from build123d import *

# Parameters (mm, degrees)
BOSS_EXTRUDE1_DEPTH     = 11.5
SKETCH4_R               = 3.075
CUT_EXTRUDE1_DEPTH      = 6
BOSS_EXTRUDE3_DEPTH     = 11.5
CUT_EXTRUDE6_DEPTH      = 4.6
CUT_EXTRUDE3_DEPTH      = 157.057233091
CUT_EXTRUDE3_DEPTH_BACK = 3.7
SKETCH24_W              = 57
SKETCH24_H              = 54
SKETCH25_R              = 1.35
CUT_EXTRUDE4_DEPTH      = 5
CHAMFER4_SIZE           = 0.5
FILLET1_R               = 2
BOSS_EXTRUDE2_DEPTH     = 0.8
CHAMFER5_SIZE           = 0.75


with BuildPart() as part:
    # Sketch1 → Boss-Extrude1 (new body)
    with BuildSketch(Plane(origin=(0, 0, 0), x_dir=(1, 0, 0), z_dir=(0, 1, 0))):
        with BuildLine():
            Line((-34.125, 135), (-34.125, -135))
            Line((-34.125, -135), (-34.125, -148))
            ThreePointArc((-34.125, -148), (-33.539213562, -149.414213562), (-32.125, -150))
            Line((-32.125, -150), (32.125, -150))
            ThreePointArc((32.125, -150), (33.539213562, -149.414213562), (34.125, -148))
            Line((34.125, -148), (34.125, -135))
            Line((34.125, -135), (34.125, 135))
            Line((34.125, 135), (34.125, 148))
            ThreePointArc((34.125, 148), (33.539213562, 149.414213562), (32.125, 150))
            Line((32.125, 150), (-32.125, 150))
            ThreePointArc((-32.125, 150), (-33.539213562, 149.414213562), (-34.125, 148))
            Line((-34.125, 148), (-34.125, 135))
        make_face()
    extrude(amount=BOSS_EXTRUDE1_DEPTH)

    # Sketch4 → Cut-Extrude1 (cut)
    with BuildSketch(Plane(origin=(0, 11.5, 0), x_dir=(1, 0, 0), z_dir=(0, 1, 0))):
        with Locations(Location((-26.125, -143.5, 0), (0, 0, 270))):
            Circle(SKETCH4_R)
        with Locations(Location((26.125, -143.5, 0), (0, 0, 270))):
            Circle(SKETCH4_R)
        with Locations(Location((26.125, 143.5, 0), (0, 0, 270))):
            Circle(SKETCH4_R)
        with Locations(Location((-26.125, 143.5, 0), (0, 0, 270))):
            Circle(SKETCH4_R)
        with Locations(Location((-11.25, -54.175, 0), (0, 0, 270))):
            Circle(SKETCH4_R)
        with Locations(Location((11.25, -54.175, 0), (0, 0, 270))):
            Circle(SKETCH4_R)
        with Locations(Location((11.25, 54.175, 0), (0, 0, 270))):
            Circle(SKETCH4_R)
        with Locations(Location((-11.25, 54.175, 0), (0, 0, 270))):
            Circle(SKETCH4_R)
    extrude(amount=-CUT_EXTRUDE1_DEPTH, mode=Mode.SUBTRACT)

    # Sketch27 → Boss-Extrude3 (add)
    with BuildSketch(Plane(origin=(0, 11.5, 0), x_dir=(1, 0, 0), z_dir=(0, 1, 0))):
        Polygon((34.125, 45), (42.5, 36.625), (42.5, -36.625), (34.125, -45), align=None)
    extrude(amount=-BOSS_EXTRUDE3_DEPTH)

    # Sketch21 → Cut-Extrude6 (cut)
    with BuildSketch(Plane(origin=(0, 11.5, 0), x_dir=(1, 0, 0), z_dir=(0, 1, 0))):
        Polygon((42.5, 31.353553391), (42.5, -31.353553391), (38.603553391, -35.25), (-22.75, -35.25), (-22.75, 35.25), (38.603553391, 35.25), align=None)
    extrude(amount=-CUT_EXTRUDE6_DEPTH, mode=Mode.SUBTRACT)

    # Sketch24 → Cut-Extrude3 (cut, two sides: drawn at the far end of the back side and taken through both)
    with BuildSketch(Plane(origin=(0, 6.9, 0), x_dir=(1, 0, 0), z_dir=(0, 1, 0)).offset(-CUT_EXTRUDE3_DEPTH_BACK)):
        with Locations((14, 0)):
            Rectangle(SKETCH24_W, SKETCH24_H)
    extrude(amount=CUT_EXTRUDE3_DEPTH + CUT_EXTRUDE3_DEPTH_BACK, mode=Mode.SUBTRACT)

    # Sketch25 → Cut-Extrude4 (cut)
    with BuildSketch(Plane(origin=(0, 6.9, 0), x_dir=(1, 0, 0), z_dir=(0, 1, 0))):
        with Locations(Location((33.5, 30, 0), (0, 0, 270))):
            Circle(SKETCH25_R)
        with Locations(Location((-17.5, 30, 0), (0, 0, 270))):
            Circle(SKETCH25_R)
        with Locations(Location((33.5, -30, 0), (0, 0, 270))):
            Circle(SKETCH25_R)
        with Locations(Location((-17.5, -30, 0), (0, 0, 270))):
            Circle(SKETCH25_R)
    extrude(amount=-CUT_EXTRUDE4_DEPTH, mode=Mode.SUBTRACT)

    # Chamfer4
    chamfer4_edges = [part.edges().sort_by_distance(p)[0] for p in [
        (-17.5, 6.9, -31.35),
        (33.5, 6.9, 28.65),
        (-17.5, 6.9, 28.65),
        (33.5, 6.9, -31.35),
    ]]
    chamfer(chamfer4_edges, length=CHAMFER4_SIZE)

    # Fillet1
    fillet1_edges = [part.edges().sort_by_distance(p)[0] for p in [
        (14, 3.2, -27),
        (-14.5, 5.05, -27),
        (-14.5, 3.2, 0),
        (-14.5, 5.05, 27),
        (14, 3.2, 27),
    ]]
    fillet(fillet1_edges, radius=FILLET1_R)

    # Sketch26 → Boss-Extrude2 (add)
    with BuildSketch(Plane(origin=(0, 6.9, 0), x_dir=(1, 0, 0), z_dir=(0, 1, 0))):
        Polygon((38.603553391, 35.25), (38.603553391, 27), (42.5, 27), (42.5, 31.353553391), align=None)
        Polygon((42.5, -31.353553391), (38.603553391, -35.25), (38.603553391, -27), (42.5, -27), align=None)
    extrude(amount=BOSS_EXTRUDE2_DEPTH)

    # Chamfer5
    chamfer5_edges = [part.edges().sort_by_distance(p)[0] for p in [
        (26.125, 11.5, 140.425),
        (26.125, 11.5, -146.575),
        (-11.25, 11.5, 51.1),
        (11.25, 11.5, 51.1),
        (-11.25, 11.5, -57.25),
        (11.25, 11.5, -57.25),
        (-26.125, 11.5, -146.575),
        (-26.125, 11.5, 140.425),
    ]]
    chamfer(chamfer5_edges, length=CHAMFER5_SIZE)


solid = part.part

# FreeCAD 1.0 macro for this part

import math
import FreeCAD as App
import Part
import Sketcher

V = App.Vector
Q = App.Units.Quantity


def edges_at(feature, points):
    """Names of the edges that pass closest to the given points."""
    edges = feature.Shape.Edges
    near = lambda p: min(range(len(edges)), key=lambda i: edges[i].distToShape(Part.Vertex(*p))[0])
    return sorted({f"Edge{near(p) + 1}" for p in points})

doc = App.newDocument("Part")
params = doc.addObject("Spreadsheet::Sheet", "Params")
for row, (alias, value) in enumerate([
    ("sketch1_radius", "2 mm"),
    ("sketch1_height", "296 mm"),
    ("sketch1_width", "64.25 mm"),
    ("pad1_length", "11.5 mm"),
    ("sketch2_diameter", "6.15 mm"),
    ("pocket1_length", "6 mm"),
    ("sketch3_height", "90 mm"),
    ("sketch3_height2", "73.25 mm"),
    ("pad2_length", "11.5 mm"),
    ("sketch4_height", "70.5 mm"),
    ("pocket2_length", "4.6 mm"),
    ("sketch5_width", "57 mm"),
    ("sketch5_height", "54 mm"),
    ("pocket3_length", "157.057233 mm"),
    ("pocket3_length2", "3.7 mm"),
    ("sketch6_diameter", "2.7 mm"),
    ("pocket4_length", "5 mm"),
    ("chamfer_size", "0.5 mm"),
    ("fillet_radius", "2 mm"),
    ("sketch7_height", "8.25 mm"),
    ("pad3_length", "0.8 mm"),
    ("chamfer2_size", "0.75 mm"),
], start=1):
    params.set(f"A{row}", alias)
    params.set(f"B{row}", "=" + value)
    params.setAlias(f"B{row}", alias)

body = doc.addObject("PartDesign::Body", "Body")

# Sketch on XZ plane
sketch1 = body.newObject("Sketcher::SketchObject", "Sketch")
sketch1.AttachmentSupport = (doc.getObject("XZ_Plane"), [""])
sketch1.MapMode = "FlatFace"
sketch1.addGeometry([
    Part.ArcOfCircle(Part.Circle(V(-32.1, 148, 0), V(0, 0, 1), 2), math.radians(90), math.radians(180)),  # 0
    Part.LineSegment(V(-32.1, 150, 0), V(32.1, 150, 0)),  # 1
    Part.ArcOfCircle(Part.Circle(V(32.1, 148, 0), V(0, 0, 1), 2), math.radians(0), math.radians(90)),  # 2
    Part.LineSegment(V(34.1, 148, 0), V(34.1, -148, 0)),  # 3
    Part.ArcOfCircle(Part.Circle(V(32.1, -148, 0), V(0, 0, 1), 2), math.radians(-90), math.radians(0)),  # 4
    Part.LineSegment(V(32.1, -150, 0), V(-32.1, -150, 0)),  # 5
    Part.ArcOfCircle(Part.Circle(V(-32.1, -148, 0), V(0, 0, 1), 2), math.radians(-180), math.radians(-90)),  # 6
    Part.LineSegment(V(-34.1, -148, 0), V(-34.1, 148, 0)),  # 7
], False)
sketch1.addConstraint([
    Sketcher.Constraint("Tangent", 0, 1, 1, 1),
    Sketcher.Constraint("Tangent", 1, 2, 2, 2),
    Sketcher.Constraint("Tangent", 2, 1, 3, 1),
    Sketcher.Constraint("Tangent", 3, 2, 4, 2),
    Sketcher.Constraint("Tangent", 4, 1, 5, 1),
    Sketcher.Constraint("Tangent", 5, 2, 6, 2),
    Sketcher.Constraint("Tangent", 6, 1, 7, 1),
    Sketcher.Constraint("Tangent", 7, 2, 0, 2),
    Sketcher.Constraint("Horizontal", 1),
    Sketcher.Constraint("Vertical", 3),
    Sketcher.Constraint("Horizontal", 5),
    Sketcher.Constraint("Vertical", 7),
    Sketcher.Constraint("Equal", 0, 2),
    Sketcher.Constraint("Equal", 2, 4),
    Sketcher.Constraint("Equal", 4, 6),
    Sketcher.Constraint("Symmetric", 0, 3, 4, 3, -1, 1),
    Sketcher.Constraint("Radius", 0, Q("2 mm")),
    Sketcher.Constraint("DistanceY", 3, 2, 3, 1, Q("296 mm")),
    Sketcher.Constraint("DistanceX", 1, 1, 1, 2, Q("64.25 mm")),
])
sketch1.setExpression("Constraints[16]", "Params.sketch1_radius")
sketch1.setExpression("Constraints[17]", "Params.sketch1_height")
sketch1.setExpression("Constraints[18]", "Params.sketch1_width")
pad1 = body.newObject("PartDesign::Pad", "Pad")
pad1.Profile = sketch1
pad1.setExpression("Length", "Params.pad1_length")
pad1.Reversed = True

# Sketch on XZ plane
sketch2 = body.newObject("Sketcher::SketchObject", "Sketch001")
sketch2.AttachmentSupport = (doc.getObject("XZ_Plane"), [""])
sketch2.MapMode = "FlatFace"
sketch2.AttachmentOffset = App.Placement(V(0, 0, -11.5), App.Rotation())
sketch2.addGeometry([
    Part.Circle(V(-26.1, 143.5, 0), V(0, 0, 1), 3.1),  # 0
    Part.Circle(V(26.1, 143.5, 0), V(0, 0, 1), 3.1),  # 1
    Part.Circle(V(26.1, -143.5, 0), V(0, 0, 1), 3.1),  # 2
    Part.Circle(V(-26.1, -143.5, 0), V(0, 0, 1), 3.1),  # 3
    Part.Circle(V(-11.2, 54.2, 0), V(0, 0, 1), 3.1),  # 4
    Part.Circle(V(11.2, 54.2, 0), V(0, 0, 1), 3.1),  # 5
    Part.Circle(V(11.2, -54.2, 0), V(0, 0, 1), 3.1),  # 6
    Part.Circle(V(-11.2, -54.2, 0), V(0, 0, 1), 3.1),  # 7
], False)
sketch2.addConstraint([
    Sketcher.Constraint("Equal", 0, 1),
    Sketcher.Constraint("Equal", 1, 2),
    Sketcher.Constraint("Equal", 2, 3),
    Sketcher.Constraint("Equal", 3, 4),
    Sketcher.Constraint("Equal", 4, 5),
    Sketcher.Constraint("Equal", 5, 6),
    Sketcher.Constraint("Equal", 6, 7),
    Sketcher.Constraint("Symmetric", 0, 3, 2, 3, -1, 1),
    Sketcher.Constraint("Symmetric", 1, 3, 3, 3, -1, 1),
    Sketcher.Constraint("Symmetric", 4, 3, 6, 3, -1, 1),
    Sketcher.Constraint("Symmetric", 5, 3, 7, 3, -1, 1),
    Sketcher.Constraint("Symmetric", 0, 3, 1, 3, -2),
    Sketcher.Constraint("Symmetric", 4, 3, 5, 3, -2),
    Sketcher.Constraint("Diameter", 0, Q("6.15 mm")),
    Sketcher.Constraint("DistanceY", 2, 3, 1, 3, Q("287 mm")),
    Sketcher.Constraint("DistanceX", 4, 3, 5, 3, Q("22.5 mm")),
    Sketcher.Constraint("DistanceX", 0, 3, 1, 3, Q("52.25 mm")),
    Sketcher.Constraint("DistanceY", 6, 3, 5, 3, Q("108.35 mm")),
])
sketch2.setExpression("Constraints[13]", "Params.sketch2_diameter")
pocket1 = body.newObject("PartDesign::Pocket", "Pocket")
pocket1.Profile = sketch2
pocket1.setExpression("Length", "Params.pocket1_length")
pocket1.Reversed = True

# Sketch on XZ plane
sketch3 = body.newObject("Sketcher::SketchObject", "Sketch002")
sketch3.AttachmentSupport = (doc.getObject("XZ_Plane"), [""])
sketch3.MapMode = "FlatFace"
sketch3.AttachmentOffset = App.Placement(V(0, 0, -11.5), App.Rotation())
sketch3.addGeometry([
    Part.LineSegment(V(42, -37, 0), V(34, -45, 0)),
    Part.LineSegment(V(34, -45, 0), V(34, 45, 0)),
    Part.LineSegment(V(34, 45, 0), V(42, 37, 0)),
    Part.LineSegment(V(42, 37, 0), V(42, -37, 0)),
], False)
sketch3.addConstraint([
    Sketcher.Constraint("Coincident", 0, 2, 1, 1),
    Sketcher.Constraint("Coincident", 1, 2, 2, 1),
    Sketcher.Constraint("Coincident", 2, 2, 3, 1),
    Sketcher.Constraint("Coincident", 3, 2, 0, 1),
    Sketcher.Constraint("Vertical", 1),
    Sketcher.Constraint("Vertical", 3),
    Sketcher.Constraint("Perpendicular", 0, 2),
    Sketcher.Constraint("Equal", 0, 2),
    Sketcher.Constraint("DistanceY", 1, 1, 1, 2, Q("90 mm")),
    Sketcher.Constraint("DistanceY", 0, 2, -1, 1, Q("45 mm")),
    Sketcher.Constraint("DistanceY", 3, 2, 3, 1, Q("73.25 mm")),
    Sketcher.Constraint("DistanceX", -1, 1, 2, 2, Q("42.5 mm")),
])
sketch3.setExpression("Constraints[8]", "Params.sketch3_height")
sketch3.setExpression("Constraints[10]", "Params.sketch3_height2")
pad2 = body.newObject("PartDesign::Pad", "Pad001")
pad2.Profile = sketch3
pad2.setExpression("Length", "Params.pad2_length")

# Sketch on XZ plane
sketch4 = body.newObject("Sketcher::SketchObject", "Sketch003")
sketch4.AttachmentSupport = (doc.getObject("XZ_Plane"), [""])
sketch4.MapMode = "FlatFace"
sketch4.AttachmentOffset = App.Placement(V(0, 0, -11.5), App.Rotation())
sketch4.addGeometry([
    Part.LineSegment(V(42, 31, 0), V(42, -31, 0)),  # 0
    Part.LineSegment(V(42, -31, 0), V(39, -35, 0)),  # 1
    Part.LineSegment(V(39, -35, 0), V(-23, -35, 0)),  # 2
    Part.LineSegment(V(-23, -35, 0), V(-23, 35, 0)),  # 3
    Part.LineSegment(V(-23, 35, 0), V(39, 35, 0)),  # 4
    Part.LineSegment(V(39, 35, 0), V(42, 31, 0)),  # 5
], False)
sketch4.addConstraint([
    Sketcher.Constraint("Coincident", 0, 2, 1, 1),
    Sketcher.Constraint("Coincident", 1, 2, 2, 1),
    Sketcher.Constraint("Coincident", 2, 2, 3, 1),
    Sketcher.Constraint("Coincident", 3, 2, 4, 1),
    Sketcher.Constraint("Coincident", 4, 2, 5, 1),
    Sketcher.Constraint("Coincident", 5, 2, 0, 1),
    Sketcher.Constraint("Vertical", 0),
    Sketcher.Constraint("Horizontal", 2),
    Sketcher.Constraint("Vertical", 3),
    Sketcher.Constraint("Horizontal", 4),
    Sketcher.Constraint("Symmetric", 1, 2, 4, 2, -1),
    Sketcher.Constraint("Perpendicular", 1, 5),
    Sketcher.Constraint("Equal", 1, 5),
    Sketcher.Constraint("DistanceY", 3, 1, 3, 2, Q("70.5 mm")),
    Sketcher.Constraint("DistanceX", -1, 1, 0, 2, Q("42.5 mm")),
    Sketcher.Constraint("DistanceX", 2, 2, -1, 1, Q("22.75 mm")),
    Sketcher.Constraint("DistanceX", 2, 2, 2, 1, Q("61.353553 mm")),
])
sketch4.setExpression("Constraints[13]", "Params.sketch4_height")
pocket2 = body.newObject("PartDesign::Pocket", "Pocket001")
pocket2.Profile = sketch4
pocket2.setExpression("Length", "Params.pocket2_length")
pocket2.Reversed = True

# Sketch on XZ plane
sketch5 = body.newObject("Sketcher::SketchObject", "Sketch004")
sketch5.AttachmentSupport = (doc.getObject("XZ_Plane"), [""])
sketch5.MapMode = "FlatFace"
sketch5.AttachmentOffset = App.Placement(V(0, 0, -6.9), App.Rotation())
sketch5.addGeometry([
    Part.LineSegment(V(-14, -27, 0), V(-14, 27, 0)),
    Part.LineSegment(V(-14, 27, 0), V(42, 27, 0)),
    Part.LineSegment(V(42, 27, 0), V(42, -27, 0)),
    Part.LineSegment(V(42, -27, 0), V(-14, -27, 0)),
], False)
sketch5.addConstraint([
    Sketcher.Constraint("Coincident", 0, 2, 1, 1),
    Sketcher.Constraint("Coincident", 1, 2, 2, 1),
    Sketcher.Constraint("Coincident", 2, 2, 3, 1),
    Sketcher.Constraint("Coincident", 3, 2, 0, 1),
    Sketcher.Constraint("Vertical", 0),
    Sketcher.Constraint("Horizontal", 1),
    Sketcher.Constraint("Vertical", 2),
    Sketcher.Constraint("Horizontal", 3),
    Sketcher.Constraint("DistanceX", 1, 1, 1, 2, Q("57 mm")),
    Sketcher.Constraint("DistanceY", 0, 1, 0, 2, Q("54 mm")),
    Sketcher.Constraint("DistanceY", -1, 1, 0, 2, Q("27 mm")),
    Sketcher.Constraint("DistanceX", 0, 2, -1, 1, Q("14.5 mm")),
])
sketch5.setExpression("Constraints[8]", "Params.sketch5_width")
sketch5.setExpression("Constraints[9]", "Params.sketch5_height")
pocket3 = body.newObject("PartDesign::Pocket", "Pocket002")
pocket3.Profile = sketch5
pocket3.Type = "TwoLengths"
pocket3.setExpression("Length", "Params.pocket3_length")
pocket3.setExpression("Length2", "Params.pocket3_length2")

# Sketch on XZ plane
sketch6 = body.newObject("Sketcher::SketchObject", "Sketch005")
sketch6.AttachmentSupport = (doc.getObject("XZ_Plane"), [""])
sketch6.MapMode = "FlatFace"
sketch6.AttachmentOffset = App.Placement(V(0, 0, -6.9), App.Rotation())
sketch6.addGeometry([
    Part.Circle(V(33.5, -30, 0), V(0, 0, 1), 1.4),
    Part.Circle(V(-17.5, -30, 0), V(0, 0, 1), 1.4),
    Part.Circle(V(33.5, 30, 0), V(0, 0, 1), 1.4),
    Part.Circle(V(-17.5, 30, 0), V(0, 0, 1), 1.4),
], False)
sketch6.addConstraint([
    Sketcher.Constraint("Equal", 0, 1),
    Sketcher.Constraint("Equal", 1, 2),
    Sketcher.Constraint("Equal", 2, 3),
    Sketcher.Constraint("Symmetric", 0, 3, 2, 3, -1),
    Sketcher.Constraint("Symmetric", 1, 3, 3, 3, -1),
    Sketcher.Constraint("Horizontal", 0, 3, 1, 3),
    Sketcher.Constraint("Diameter", 0, Q("2.7 mm")),
    Sketcher.Constraint("DistanceY", 0, 3, -1, 1, Q("30 mm")),
    Sketcher.Constraint("DistanceX", 1, 3, 0, 3, Q("51 mm")),
    Sketcher.Constraint("DistanceX", -1, 1, 0, 3, Q("33.5 mm")),
])
sketch6.setExpression("Constraints[6]", "Params.sketch6_diameter")
pocket4 = body.newObject("PartDesign::Pocket", "Pocket003")
pocket4.Profile = sketch6
pocket4.setExpression("Length", "Params.pocket4_length")
pocket4.Reversed = True
doc.recompute()

chamfer = body.newObject("PartDesign::Chamfer", "Chamfer")
chamfer.Base = (pocket4, edges_at(pocket4, [
    (-17.5, 6.9, -31.35),
    (33.5, 6.9, 28.65),
    (-17.5, 6.9, 28.65),
    (33.5, 6.9, -31.35),
]))
chamfer.setExpression("Size", "Params.chamfer_size")
doc.recompute()

fillet = body.newObject("PartDesign::Fillet", "Fillet")
fillet.Base = (chamfer, edges_at(chamfer, [
    (14, 3.2, -27),
    (-14.5, 5.05, -27),
    (-14.5, 3.2, 0),
    (-14.5, 5.05, 27),
    (14, 3.2, 27),
]))
fillet.setExpression("Radius", "Params.fillet_radius")

# Sketch on XZ plane
sketch7 = body.newObject("Sketcher::SketchObject", "Sketch006")
sketch7.AttachmentSupport = (doc.getObject("XZ_Plane"), [""])
sketch7.MapMode = "FlatFace"
sketch7.AttachmentOffset = App.Placement(V(0, 0, -6.9), App.Rotation())
sketch7.addGeometry([
    Part.LineSegment(V(38.6, -35.2, 0), V(38.6, -27, 0)),  # 0
    Part.LineSegment(V(38.6, -27, 0), V(42.5, -27, 0)),  # 1
    Part.LineSegment(V(42.5, -27, 0), V(42.5, -31.4, 0)),  # 2
    Part.LineSegment(V(42.5, -31.4, 0), V(38.6, -35.2, 0)),  # 3
    Part.LineSegment(V(38.6, 35.2, 0), V(42.5, 31.4, 0)),  # 4
    Part.LineSegment(V(42.5, 31.4, 0), V(42.5, 27, 0)),  # 5
    Part.LineSegment(V(42.5, 27, 0), V(38.6, 27, 0)),  # 6
    Part.LineSegment(V(38.6, 27, 0), V(38.6, 35.2, 0)),  # 7
], False)
sketch7.addConstraint([
    Sketcher.Constraint("Coincident", 0, 2, 1, 1),
    Sketcher.Constraint("Coincident", 1, 2, 2, 1),
    Sketcher.Constraint("Coincident", 2, 2, 3, 1),
    Sketcher.Constraint("Coincident", 3, 2, 0, 1),
    Sketcher.Constraint("Coincident", 4, 2, 5, 1),
    Sketcher.Constraint("Coincident", 5, 2, 6, 1),
    Sketcher.Constraint("Coincident", 6, 2, 7, 1),
    Sketcher.Constraint("Coincident", 7, 2, 4, 1),
    Sketcher.Constraint("Vertical", 0),
    Sketcher.Constraint("Horizontal", 1),
    Sketcher.Constraint("Vertical", 2),
    Sketcher.Constraint("Vertical", 5),
    Sketcher.Constraint("Horizontal", 6),
    Sketcher.Constraint("Vertical", 7),
    Sketcher.Constraint("Symmetric", 2, 2, 4, 2, -1),
    Sketcher.Constraint("Symmetric", 0, 2, 6, 2, -1),
    Sketcher.Constraint("Perpendicular", 3, 4),
    Sketcher.Constraint("Equal", 0, 7),
    Sketcher.Constraint("DistanceY", 0, 2, -1, 1, Q("27 mm")),
    Sketcher.Constraint("DistanceY", 0, 1, 0, 2, Q("8.25 mm")),
    Sketcher.Constraint("DistanceX", -1, 1, 1, 2, Q("42.5 mm")),
    Sketcher.Constraint("DistanceX", 1, 1, 1, 2, Q("3.896447 mm")),
])
sketch7.setExpression("Constraints[19]", "Params.sketch7_height")
pad3 = body.newObject("PartDesign::Pad", "Pad002")
pad3.Profile = sketch7
pad3.setExpression("Length", "Params.pad3_length")
pad3.Reversed = True
doc.recompute()

chamfer2 = body.newObject("PartDesign::Chamfer", "Chamfer001")
chamfer2.Base = (pad3, edges_at(pad3, [
    (26.125, 11.5, 140.425),
    (26.125, 11.5, -146.575),
    (-11.25, 11.5, 51.1),
    (11.25, 11.5, 51.1),
    (-11.25, 11.5, -57.25),
    (11.25, 11.5, -57.25),
    (-26.125, 11.5, -146.575),
    (-26.125, 11.5, 140.425),
]))
chamfer2.setExpression("Size", "Params.chamfer2_size")

doc.recompute()
